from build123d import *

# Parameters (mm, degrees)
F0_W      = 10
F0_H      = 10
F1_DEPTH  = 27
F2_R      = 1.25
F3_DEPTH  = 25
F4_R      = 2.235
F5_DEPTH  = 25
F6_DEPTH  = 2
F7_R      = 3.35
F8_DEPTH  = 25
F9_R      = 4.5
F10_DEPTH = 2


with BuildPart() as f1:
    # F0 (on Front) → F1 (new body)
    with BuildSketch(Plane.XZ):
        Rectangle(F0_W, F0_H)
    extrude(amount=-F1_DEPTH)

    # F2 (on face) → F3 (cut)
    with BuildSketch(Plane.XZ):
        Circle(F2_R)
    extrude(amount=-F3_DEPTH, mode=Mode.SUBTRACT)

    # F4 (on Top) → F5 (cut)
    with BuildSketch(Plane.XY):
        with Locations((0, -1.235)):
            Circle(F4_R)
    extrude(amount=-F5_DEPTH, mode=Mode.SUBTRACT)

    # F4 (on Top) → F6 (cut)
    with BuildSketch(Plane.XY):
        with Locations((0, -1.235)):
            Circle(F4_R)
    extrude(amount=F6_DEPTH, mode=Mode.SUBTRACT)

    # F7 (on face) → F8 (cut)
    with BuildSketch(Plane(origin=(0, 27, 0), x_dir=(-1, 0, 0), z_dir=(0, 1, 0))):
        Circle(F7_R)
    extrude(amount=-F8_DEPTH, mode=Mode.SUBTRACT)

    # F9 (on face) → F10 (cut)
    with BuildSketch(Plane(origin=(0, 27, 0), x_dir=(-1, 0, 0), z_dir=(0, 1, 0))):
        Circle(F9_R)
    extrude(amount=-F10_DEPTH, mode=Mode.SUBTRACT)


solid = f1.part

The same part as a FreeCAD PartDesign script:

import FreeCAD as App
import Part
import Sketcher
from FreeCAD import Vector
Q = App.Units.Quantity

doc = App.newDocument("Part")
body = doc.addObject("PartDesign::Body", "Body")

sketch1 = body.newObject("Sketcher::SketchObject", "Sketch")
sketch1.AttachmentSupport = (doc.getObject("XZ_Plane"), [""])
sketch1.MapMode = "FlatFace"
sketch1.addGeometry([
    Part.LineSegment(Vector(-5, 5, 0), Vector(-5, -5, 0)),
    Part.LineSegment(Vector(-5, -5, 0), Vector(5, -5, 0)),
    Part.LineSegment(Vector(5, -5, 0), Vector(5, 5, 0)),
    Part.LineSegment(Vector(5, 5, 0), Vector(-5, 5, 0)),
], False)
sketch1.addConstraint([
    Sketcher.Constraint("Coincident", 0, 2, 1, 1),
    Sketcher.Constraint("Coincident", 1, 2, 2, 1),
    Sketcher.Constraint("Coincident", 2, 2, 3, 1),
    Sketcher.Constraint("Coincident", 3, 2, 0, 1),
    Sketcher.Constraint("Vertical", 0),
    Sketcher.Constraint("Horizontal", 1),
    Sketcher.Constraint("Vertical", 2),
    Sketcher.Constraint("Horizontal", 3),
    Sketcher.Constraint("Symmetric", 0, 2, 2, 2, -1, 1),
    Sketcher.Constraint("Equal", 3, 0),
    Sketcher.Constraint("DistanceX", 1, 1, 1, 2, Q("10 mm")),
])
pad1 = body.newObject("PartDesign::Pad", "Pad")
pad1.Profile = sketch1
pad1.Length = 27
pad1.Reversed = True

sketch2 = body.newObject("Sketcher::SketchObject", "Sketch001")
sketch2.AttachmentSupport = (doc.getObject("XZ_Plane"), [""])
sketch2.MapMode = "FlatFace"
sketch2.addGeometry(Part.Circle(Vector(0, 0, 0), Vector(0, 0, 1), 1.2), False)
sketch2.addConstraint([
    Sketcher.Constraint("Coincident", 0, 3, -1, 1),
    Sketcher.Constraint("Diameter", 0, Q("2.5 mm")),
])
pocket1 = body.newObject("PartDesign::Pocket", "Pocket")
pocket1.Profile = sketch2
pocket1.Length = 25

sketch3 = body.newObject("Sketcher::SketchObject", "Sketch002")
sketch3.AttachmentSupport = (doc.getObject("XY_Plane"), [""])
sketch3.MapMode = "FlatFace"
sketch3.addGeometry(Part.Circle(Vector(0, -1.2, 0), Vector(0, 0, 1), 2.2), False)
sketch3.addConstraint([
    Sketcher.Constraint("PointOnObject", 0, 3, -2),
    Sketcher.Constraint("Diameter", 0, Q("4.47 mm")),
    Sketcher.Constraint("DistanceY", 0, 3, -1, 1, Q("1.235 mm")),
])
pocket2 = body.newObject("PartDesign::Pocket", "Pocket001")
pocket2.Profile = sketch3
pocket2.Length = 25

sketch4 = body.newObject("Sketcher::SketchObject", "Sketch003")
sketch4.AttachmentSupport = (doc.getObject("XY_Plane"), [""])
sketch4.MapMode = "FlatFace"
sketch4.addGeometry(Part.Circle(Vector(0, -1.2, 0), Vector(0, 0, 1), 2.2), False)
sketch4.addConstraint([
    Sketcher.Constraint("PointOnObject", 0, 3, -2),
    Sketcher.Constraint("Diameter", 0, Q("4.47 mm")),
    Sketcher.Constraint("DistanceY", 0, 3, -1, 1, Q("1.235 mm")),
])
pocket3 = body.newObject("PartDesign::Pocket", "Pocket002")
pocket3.Profile = sketch4
pocket3.Length = 2
pocket3.Reversed = True

sketch5 = body.newObject("Sketcher::SketchObject", "Sketch004")
sketch5.AttachmentSupport = (doc.getObject("XZ_Plane"), [""])
sketch5.MapMode = "FlatFace"
sketch5.AttachmentOffset = App.Placement(Vector(0, 0, -27), App.Rotation())
sketch5.addGeometry(Part.Circle(Vector(0, 0, 0), Vector(0, 0, 1), 3.4), False)
sketch5.addConstraint([
    Sketcher.Constraint("Coincident", 0, 3, -1, 1),
    Sketcher.Constraint("Diameter", 0, Q("6.7 mm")),
])
pocket4 = body.newObject("PartDesign::Pocket", "Pocket003")
pocket4.Profile = sketch5
pocket4.Length = 25
pocket4.Reversed = True

sketch6 = body.newObject("Sketcher::SketchObject", "Sketch005")
sketch6.AttachmentSupport = (doc.getObject("XZ_Plane"), [""])
sketch6.MapMode = "FlatFace"
sketch6.AttachmentOffset = App.Placement(Vector(0, 0, -27), App.Rotation())
sketch6.addGeometry(Part.Circle(Vector(0, 0, 0), Vector(0, 0, 1), 4.5), False)
sketch6.addConstraint([
    Sketcher.Constraint("Coincident", 0, 3, -1, 1),
    Sketcher.Constraint("Diameter", 0, Q("9 mm")),
])
pocket5 = body.newObject("PartDesign::Pocket", "Pocket004")
pocket5.Profile = sketch6
pocket5.Length = 2
pocket5.Reversed = True

doc.recompute()
